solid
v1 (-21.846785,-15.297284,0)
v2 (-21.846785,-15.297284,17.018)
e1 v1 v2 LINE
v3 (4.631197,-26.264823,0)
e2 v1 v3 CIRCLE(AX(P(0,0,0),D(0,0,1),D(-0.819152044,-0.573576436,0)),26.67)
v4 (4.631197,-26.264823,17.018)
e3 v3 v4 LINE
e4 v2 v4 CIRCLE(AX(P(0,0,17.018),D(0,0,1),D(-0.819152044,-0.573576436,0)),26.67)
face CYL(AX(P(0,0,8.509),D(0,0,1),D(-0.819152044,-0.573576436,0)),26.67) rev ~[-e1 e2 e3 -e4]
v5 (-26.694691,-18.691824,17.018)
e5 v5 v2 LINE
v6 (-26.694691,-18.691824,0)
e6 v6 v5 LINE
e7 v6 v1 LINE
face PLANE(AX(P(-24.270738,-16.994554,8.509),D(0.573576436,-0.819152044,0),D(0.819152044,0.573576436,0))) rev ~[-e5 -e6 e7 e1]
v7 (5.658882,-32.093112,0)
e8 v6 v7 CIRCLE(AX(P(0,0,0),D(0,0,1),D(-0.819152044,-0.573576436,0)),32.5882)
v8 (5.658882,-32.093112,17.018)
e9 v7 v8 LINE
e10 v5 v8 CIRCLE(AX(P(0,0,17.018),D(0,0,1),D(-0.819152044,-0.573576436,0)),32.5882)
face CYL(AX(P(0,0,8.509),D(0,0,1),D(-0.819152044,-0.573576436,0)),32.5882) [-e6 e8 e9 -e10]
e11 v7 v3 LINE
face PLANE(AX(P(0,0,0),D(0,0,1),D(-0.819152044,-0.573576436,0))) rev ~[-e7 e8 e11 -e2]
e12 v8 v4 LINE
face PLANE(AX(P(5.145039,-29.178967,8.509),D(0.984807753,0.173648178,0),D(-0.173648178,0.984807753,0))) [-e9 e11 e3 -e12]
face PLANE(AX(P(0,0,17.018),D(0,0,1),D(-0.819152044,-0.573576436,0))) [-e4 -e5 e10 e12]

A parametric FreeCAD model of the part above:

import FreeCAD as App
import Part
import Sketcher

V = App.Vector
Q = App.Units.Quantity

doc = App.newDocument("Part")
body = doc.addObject("PartDesign::Body", "Body")

sketch1 = body.newObject("Sketcher::SketchObject", "Sketch")
sketch1.Placement = App.Placement(V(0, 0, 0), App.Rotation(V(0.819152044, 0.573576436, 0), V(0, 0, 0.999999999), V(0.573576436, -0.819152044, 0), "ZXY"))
sketch1.addGeometry([
    Part.LineSegment(V(-33, 17, 0), V(-33, 0, 0)),
    Part.LineSegment(V(-33, 0, 0), V(-27, 0, 0)),
    Part.LineSegment(V(-27, 0, 0), V(-27, 17, 0)),
    Part.LineSegment(V(-27, 17, 0), V(-33, 17, 0)),
], False)
sketch1.addConstraint([
    Sketcher.Constraint("Coincident", 0, 2, 1, 1),
    Sketcher.Constraint("Coincident", 1, 2, 2, 1),
    Sketcher.Constraint("Coincident", 2, 2, 3, 1),
    Sketcher.Constraint("Coincident", 3, 2, 0, 1),
    Sketcher.Constraint("Vertical", 0),
    Sketcher.Constraint("Horizontal", 1),
    Sketcher.Constraint("Vertical", 2),
    Sketcher.Constraint("Horizontal", 3),
    Sketcher.Constraint("PointOnObject", 0, 2, -1),
    Sketcher.Constraint("DistanceY", 0, 2, 0, 1, Q("0.67 in")),
    Sketcher.Constraint("DistanceX", 1, 1, 1, 2, Q("0.233 in")),
    Sketcher.Constraint("DistanceX", 1, 2, -1, 1, Q("1.05 in")),
])
revolution = body.newObject("PartDesign::Revolution", "Revolution")
revolution.Profile = sketch1
revolution.ReferenceAxis = (sketch1, ["V_Axis"])
revolution.Angle = 65

doc.recompute()
